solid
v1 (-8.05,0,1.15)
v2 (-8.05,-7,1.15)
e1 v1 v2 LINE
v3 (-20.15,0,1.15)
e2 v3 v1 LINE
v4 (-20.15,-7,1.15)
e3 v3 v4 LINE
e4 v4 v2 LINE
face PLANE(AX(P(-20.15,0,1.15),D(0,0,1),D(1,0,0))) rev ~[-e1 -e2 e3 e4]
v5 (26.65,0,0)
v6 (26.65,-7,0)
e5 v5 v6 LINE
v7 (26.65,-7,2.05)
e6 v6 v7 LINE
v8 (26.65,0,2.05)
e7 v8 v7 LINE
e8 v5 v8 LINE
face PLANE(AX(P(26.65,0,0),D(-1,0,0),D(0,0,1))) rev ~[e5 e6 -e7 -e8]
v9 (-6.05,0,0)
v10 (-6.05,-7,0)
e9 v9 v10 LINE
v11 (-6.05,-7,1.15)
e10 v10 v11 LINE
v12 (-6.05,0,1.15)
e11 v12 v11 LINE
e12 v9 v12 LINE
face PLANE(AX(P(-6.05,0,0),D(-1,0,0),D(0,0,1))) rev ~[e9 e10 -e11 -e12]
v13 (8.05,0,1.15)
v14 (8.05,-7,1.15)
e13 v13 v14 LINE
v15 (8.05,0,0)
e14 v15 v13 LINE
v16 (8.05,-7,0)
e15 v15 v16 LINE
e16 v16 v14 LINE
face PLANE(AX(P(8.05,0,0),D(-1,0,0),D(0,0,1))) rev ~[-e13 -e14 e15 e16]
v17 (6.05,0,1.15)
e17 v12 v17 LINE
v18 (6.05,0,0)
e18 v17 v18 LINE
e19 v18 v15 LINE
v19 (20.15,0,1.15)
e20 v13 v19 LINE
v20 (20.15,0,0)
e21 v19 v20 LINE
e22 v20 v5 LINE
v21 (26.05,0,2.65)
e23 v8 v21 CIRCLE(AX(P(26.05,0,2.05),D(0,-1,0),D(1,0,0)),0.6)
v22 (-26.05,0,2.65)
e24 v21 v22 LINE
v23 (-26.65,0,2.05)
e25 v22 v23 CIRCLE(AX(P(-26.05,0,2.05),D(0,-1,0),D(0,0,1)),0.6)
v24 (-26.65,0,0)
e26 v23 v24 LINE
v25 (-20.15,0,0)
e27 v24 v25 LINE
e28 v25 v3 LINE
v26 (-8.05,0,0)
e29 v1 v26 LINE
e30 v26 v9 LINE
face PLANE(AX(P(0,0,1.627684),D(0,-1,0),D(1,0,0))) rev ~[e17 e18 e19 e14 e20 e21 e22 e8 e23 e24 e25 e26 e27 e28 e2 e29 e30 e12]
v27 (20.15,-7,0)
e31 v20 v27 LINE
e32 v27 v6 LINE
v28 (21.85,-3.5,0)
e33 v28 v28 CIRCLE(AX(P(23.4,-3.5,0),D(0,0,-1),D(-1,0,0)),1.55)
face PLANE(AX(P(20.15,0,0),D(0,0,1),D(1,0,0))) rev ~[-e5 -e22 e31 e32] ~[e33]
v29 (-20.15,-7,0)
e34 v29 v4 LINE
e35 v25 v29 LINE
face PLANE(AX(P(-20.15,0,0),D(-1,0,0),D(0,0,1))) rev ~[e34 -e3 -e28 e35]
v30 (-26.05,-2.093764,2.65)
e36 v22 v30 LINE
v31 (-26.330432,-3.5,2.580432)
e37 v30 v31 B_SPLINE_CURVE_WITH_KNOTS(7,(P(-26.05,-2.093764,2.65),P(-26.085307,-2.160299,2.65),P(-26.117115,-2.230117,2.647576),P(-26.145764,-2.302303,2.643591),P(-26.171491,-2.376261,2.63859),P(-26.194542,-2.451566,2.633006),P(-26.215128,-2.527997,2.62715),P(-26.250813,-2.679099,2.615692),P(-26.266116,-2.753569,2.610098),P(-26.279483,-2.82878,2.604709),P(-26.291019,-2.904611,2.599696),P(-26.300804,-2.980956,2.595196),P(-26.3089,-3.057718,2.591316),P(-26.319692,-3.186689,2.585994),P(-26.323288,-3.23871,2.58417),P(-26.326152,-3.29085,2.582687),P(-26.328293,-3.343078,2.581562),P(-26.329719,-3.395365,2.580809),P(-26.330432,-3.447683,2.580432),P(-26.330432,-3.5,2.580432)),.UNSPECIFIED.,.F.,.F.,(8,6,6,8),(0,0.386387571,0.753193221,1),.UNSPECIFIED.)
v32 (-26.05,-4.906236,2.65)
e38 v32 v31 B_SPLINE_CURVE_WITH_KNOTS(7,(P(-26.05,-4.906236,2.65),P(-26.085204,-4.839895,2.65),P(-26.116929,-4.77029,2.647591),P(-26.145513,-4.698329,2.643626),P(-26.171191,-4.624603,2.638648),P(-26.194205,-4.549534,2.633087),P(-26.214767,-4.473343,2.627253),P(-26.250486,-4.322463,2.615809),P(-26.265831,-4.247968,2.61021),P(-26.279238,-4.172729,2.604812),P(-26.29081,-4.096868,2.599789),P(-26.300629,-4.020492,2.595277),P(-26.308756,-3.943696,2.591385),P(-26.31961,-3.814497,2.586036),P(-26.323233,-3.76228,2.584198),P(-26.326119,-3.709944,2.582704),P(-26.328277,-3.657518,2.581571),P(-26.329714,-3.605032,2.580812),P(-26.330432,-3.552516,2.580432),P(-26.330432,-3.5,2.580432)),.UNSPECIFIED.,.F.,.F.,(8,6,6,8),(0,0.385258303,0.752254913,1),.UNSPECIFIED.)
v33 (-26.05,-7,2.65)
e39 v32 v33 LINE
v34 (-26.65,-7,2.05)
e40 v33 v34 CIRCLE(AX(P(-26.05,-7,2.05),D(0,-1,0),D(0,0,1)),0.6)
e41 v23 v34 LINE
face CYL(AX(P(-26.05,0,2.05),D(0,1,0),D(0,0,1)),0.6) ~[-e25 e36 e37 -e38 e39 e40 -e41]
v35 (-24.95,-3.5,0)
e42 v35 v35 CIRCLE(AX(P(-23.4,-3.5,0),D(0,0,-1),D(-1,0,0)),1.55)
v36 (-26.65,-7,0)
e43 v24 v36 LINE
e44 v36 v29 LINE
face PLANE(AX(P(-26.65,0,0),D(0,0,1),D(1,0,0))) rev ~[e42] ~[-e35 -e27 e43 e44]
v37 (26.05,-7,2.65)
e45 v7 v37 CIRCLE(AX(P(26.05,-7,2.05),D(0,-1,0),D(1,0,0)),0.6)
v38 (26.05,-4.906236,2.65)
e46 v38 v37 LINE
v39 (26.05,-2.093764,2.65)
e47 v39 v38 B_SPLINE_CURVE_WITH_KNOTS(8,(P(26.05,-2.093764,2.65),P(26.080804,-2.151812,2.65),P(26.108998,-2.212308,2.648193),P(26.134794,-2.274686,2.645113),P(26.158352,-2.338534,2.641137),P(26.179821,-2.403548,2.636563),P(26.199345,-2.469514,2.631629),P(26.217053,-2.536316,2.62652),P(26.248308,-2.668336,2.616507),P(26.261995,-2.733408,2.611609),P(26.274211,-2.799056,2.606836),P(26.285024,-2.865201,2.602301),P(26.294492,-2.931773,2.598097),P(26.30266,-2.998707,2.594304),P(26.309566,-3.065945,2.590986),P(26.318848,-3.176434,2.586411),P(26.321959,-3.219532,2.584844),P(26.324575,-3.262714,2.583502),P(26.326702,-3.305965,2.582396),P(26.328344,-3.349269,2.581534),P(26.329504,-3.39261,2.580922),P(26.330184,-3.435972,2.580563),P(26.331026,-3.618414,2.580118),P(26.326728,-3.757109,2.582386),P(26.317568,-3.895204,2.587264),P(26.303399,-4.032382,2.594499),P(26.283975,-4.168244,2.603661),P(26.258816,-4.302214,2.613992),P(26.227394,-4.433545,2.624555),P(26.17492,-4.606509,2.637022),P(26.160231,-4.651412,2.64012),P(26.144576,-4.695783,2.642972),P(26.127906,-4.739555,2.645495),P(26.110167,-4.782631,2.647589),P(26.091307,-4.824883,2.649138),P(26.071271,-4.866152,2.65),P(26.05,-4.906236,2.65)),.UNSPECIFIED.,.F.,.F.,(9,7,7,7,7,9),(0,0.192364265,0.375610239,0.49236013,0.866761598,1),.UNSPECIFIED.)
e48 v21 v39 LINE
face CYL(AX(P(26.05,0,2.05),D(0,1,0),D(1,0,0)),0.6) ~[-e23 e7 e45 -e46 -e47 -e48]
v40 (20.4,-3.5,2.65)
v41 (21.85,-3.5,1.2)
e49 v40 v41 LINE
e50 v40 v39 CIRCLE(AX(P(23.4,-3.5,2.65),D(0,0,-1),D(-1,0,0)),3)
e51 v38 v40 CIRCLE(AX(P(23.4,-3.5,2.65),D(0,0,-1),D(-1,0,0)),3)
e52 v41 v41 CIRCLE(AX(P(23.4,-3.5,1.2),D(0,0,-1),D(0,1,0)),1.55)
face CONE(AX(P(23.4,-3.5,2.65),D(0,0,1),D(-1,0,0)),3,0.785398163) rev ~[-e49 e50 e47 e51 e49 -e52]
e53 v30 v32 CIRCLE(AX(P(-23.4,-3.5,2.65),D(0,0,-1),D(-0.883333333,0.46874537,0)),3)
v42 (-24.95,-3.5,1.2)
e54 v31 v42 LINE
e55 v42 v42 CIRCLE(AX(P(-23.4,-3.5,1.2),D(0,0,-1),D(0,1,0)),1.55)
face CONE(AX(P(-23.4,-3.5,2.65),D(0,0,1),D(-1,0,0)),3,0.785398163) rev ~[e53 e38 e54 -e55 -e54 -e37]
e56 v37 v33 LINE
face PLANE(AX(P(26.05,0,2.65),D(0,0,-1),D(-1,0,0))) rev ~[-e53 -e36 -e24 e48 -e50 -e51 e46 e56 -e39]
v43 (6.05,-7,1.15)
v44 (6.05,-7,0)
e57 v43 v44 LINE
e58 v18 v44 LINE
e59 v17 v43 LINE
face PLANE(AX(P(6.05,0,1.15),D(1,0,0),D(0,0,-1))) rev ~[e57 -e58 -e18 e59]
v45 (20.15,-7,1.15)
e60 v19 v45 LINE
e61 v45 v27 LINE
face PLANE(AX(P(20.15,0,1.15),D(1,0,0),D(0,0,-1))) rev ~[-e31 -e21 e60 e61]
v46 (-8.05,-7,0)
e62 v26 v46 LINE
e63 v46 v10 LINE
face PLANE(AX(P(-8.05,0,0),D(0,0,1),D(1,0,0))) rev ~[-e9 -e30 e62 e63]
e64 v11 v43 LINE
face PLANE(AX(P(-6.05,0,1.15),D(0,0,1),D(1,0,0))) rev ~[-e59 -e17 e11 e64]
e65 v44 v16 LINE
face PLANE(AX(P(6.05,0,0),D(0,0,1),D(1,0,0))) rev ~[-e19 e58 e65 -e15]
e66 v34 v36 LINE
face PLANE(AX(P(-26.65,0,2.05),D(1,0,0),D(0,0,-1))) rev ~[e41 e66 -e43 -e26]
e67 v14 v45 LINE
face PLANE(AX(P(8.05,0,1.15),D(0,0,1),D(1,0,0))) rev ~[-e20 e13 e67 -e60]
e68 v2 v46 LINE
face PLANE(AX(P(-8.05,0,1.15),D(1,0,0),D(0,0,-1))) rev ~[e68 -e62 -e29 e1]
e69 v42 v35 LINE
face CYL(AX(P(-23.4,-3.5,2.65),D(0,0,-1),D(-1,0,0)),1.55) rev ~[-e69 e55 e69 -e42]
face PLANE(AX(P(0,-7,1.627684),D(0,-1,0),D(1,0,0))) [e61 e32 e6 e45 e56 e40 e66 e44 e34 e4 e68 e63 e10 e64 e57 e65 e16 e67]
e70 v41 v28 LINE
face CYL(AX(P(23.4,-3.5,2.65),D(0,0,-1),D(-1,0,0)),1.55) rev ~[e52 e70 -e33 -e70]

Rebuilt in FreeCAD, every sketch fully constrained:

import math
import FreeCAD as App
import Part
import Sketcher

V = App.Vector
Q = App.Units.Quantity

doc = App.newDocument("Part")
body = doc.addObject("PartDesign::Body", "Body")

sketch1 = doc.addObject("Sketcher::SketchObject", "Sketch")
body.addObject(sketch1)
sketch1.AttachmentSupport = (doc.XZ_Plane, [""])
sketch1.MapMode = "FlatFace"
sketch1.addGeometry(Part.LineSegment(V(-6.05, 1.15, 0), V(6.05, 1.15, 0)), False)
sketch1.addGeometry(Part.LineSegment(V(6.05, 1.15, 0), V(6.05, 0, 0)), False)
sketch1.addGeometry(Part.LineSegment(V(6.05, 0, 0), V(8.05, 0, 0)), False)
sketch1.addGeometry(Part.LineSegment(V(8.05, 0, 0), V(8.05, 1.15, 0)), False)
sketch1.addGeometry(Part.LineSegment(V(8.05, 1.15, 0), V(20.15, 1.15, 0)), False)
sketch1.addGeometry(Part.LineSegment(V(20.15, 1.15, 0), V(20.15, 0, 0)), False)
sketch1.addGeometry(Part.LineSegment(V(20.15, 0, 0), V(26.65, 0, 0)), False)
sketch1.addGeometry(Part.LineSegment(V(26.65, 0, 0), V(26.65, 2.05, 0)), False)
sketch1.addGeometry(Part.ArcOfCircle(Part.Circle(V(26.05, 2.05, 0), V(0, 0, 1), 0.6), math.radians(0), math.radians(90)), False)
sketch1.addGeometry(Part.LineSegment(V(26.05, 2.65, 0), V(-26.05, 2.65, 0)), False)
sketch1.addGeometry(Part.ArcOfCircle(Part.Circle(V(-26.05, 2.05, 0), V(0, 0, 1), 0.6), math.radians(90), math.radians(180)), False)
sketch1.addGeometry(Part.LineSegment(V(-26.65, 2.05, 0), V(-26.65, 0, 0)), False)
sketch1.addGeometry(Part.LineSegment(V(-26.65, 0, 0), V(-20.15, 0, 0)), False)
sketch1.addGeometry(Part.LineSegment(V(-20.15, 0, 0), V(-20.15, 1.15, 0)), False)
sketch1.addGeometry(Part.LineSegment(V(-20.15, 1.15, 0), V(-8.05, 1.15, 0)), False)
sketch1.addGeometry(Part.LineSegment(V(-8.05, 1.15, 0), V(-8.05, 0, 0)), False)
sketch1.addGeometry(Part.LineSegment(V(-8.05, 0, 0), V(-6.05, 0, 0)), False)
sketch1.addGeometry(Part.LineSegment(V(-6.05, 0, 0), V(-6.05, 1.15, 0)), False)
sketch1.addConstraint(Sketcher.Constraint("Coincident", 0, 2, 1, 1))
sketch1.addConstraint(Sketcher.Constraint("Coincident", 1, 2, 2, 1))
sketch1.addConstraint(Sketcher.Constraint("Coincident", 2, 2, 3, 1))
sketch1.addConstraint(Sketcher.Constraint("Coincident", 3, 2, 4, 1))
sketch1.addConstraint(Sketcher.Constraint("Coincident", 4, 2, 5, 1))
sketch1.addConstraint(Sketcher.Constraint("Coincident", 5, 2, 6, 1))
sketch1.addConstraint(Sketcher.Constraint("Coincident", 6, 2, 7, 1))
sketch1.addConstraint(Sketcher.Constraint("Tangent", 7, 2, 8, 1))
sketch1.addConstraint(Sketcher.Constraint("Tangent", 8, 2, 9, 1))
sketch1.addConstraint(Sketcher.Constraint("Tangent", 9, 2, 10, 1))
sketch1.addConstraint(Sketcher.Constraint("Tangent", 10, 2, 11, 1))
sketch1.addConstraint(Sketcher.Constraint("Coincident", 11, 2, 12, 1))
sketch1.addConstraint(Sketcher.Constraint("Coincident", 12, 2, 13, 1))
sketch1.addConstraint(Sketcher.Constraint("Coincident", 13, 2, 14, 1))
sketch1.addConstraint(Sketcher.Constraint("Coincident", 14, 2, 15, 1))
sketch1.addConstraint(Sketcher.Constraint("Coincident", 15, 2, 16, 1))
sketch1.addConstraint(Sketcher.Constraint("Coincident", 16, 2, 17, 1))
sketch1.addConstraint(Sketcher.Constraint("Coincident", 17, 2, 0, 1))
sketch1.addConstraint(Sketcher.Constraint("Horizontal", 0))
sketch1.addConstraint(Sketcher.Constraint("Vertical", 1))
sketch1.addConstraint(Sketcher.Constraint("Horizontal", 2))
sketch1.addConstraint(Sketcher.Constraint("Vertical", 3))
sketch1.addConstraint(Sketcher.Constraint("Horizontal", 4))
sketch1.addConstraint(Sketcher.Constraint("Vertical", 5))
sketch1.addConstraint(Sketcher.Constraint("Horizontal", 6))
sketch1.addConstraint(Sketcher.Constraint("Vertical", 7))
sketch1.addConstraint(Sketcher.Constraint("Horizontal", 9))
sketch1.addConstraint(Sketcher.Constraint("Vertical", 11))
sketch1.addConstraint(Sketcher.Constraint("Horizontal", 12))
sketch1.addConstraint(Sketcher.Constraint("Vertical", 13))
sketch1.addConstraint(Sketcher.Constraint("Horizontal", 14))
sketch1.addConstraint(Sketcher.Constraint("Vertical", 15))
sketch1.addConstraint(Sketcher.Constraint("Horizontal", 16))
sketch1.addConstraint(Sketcher.Constraint("Vertical", 17))
sketch1.addConstraint(Sketcher.Constraint("Equal", 8, 10))
sketch1.addConstraint(Sketcher.Constraint("Symmetric", 6, 2, 11, 2, -1, 1))
sketch1.addConstraint(Sketcher.Constraint("Symmetric", 2, 2, 15, 2, -1, 1))
sketch1.addConstraint(Sketcher.Constraint("Symmetric", 5, 2, 12, 2, -2))
sketch1.addConstraint(Sketcher.Constraint("Symmetric", 1, 2, 16, 2, -2))
sketch1.addConstraint(Sketcher.Constraint("Horizontal", 0, 2, 3, 2))
sketch1.addConstraint(Sketcher.Constraint("Horizontal", 4, 2, 13, 2))
sketch1.addConstraint(Sketcher.Constraint("Equal", 0, 4))
sketch1.addConstraint(Sketcher.Constraint("Radius", 8, Q("0.6 mm")))
sketch1.addConstraint(Sketcher.Constraint("DistanceX", 2, 1, 2, 2, Q("2 mm")))
sketch1.addConstraint(Sketcher.Constraint("DistanceX", 0, 1, 0, 2, Q("12.1 mm")))
sketch1.addConstraint(Sketcher.Constraint("DistanceX", 6, 1, 6, 2, Q("6.5 mm")))
sketch1.addConstraint(Sketcher.Constraint("DistanceY", 1, 2, 1, 1, Q("1.15 mm")))
sketch1.addConstraint(Sketcher.Constraint("DistanceY", 7, 1, 7, 2, Q("2.05 mm")))
pad1 = doc.addObject("PartDesign::Pad", "Pad")
body.addObject(pad1)
pad1.Profile = sketch1
pad1.Length = 7

sketch2 = doc.addObject("Sketcher::SketchObject", "Sketch001")
body.addObject(sketch2)
sketch2.AttachmentSupport = (doc.XY_Plane, [""])
sketch2.MapMode = "FlatFace"
sketch2.AttachmentOffset = App.Placement(V(0, 0, 2.65), App.Rotation())
sketch2.addGeometry(Part.Circle(V(-23.4, -3.5, 0), V(0, 0, 1), 1.55), False)
sketch2.addConstraint(Sketcher.Constraint("Diameter", 0, Q("3.1 mm")))
sketch2.addConstraint(Sketcher.Constraint("DistanceX", 0, 3, -1, 1, Q("23.4 mm")))
sketch2.addConstraint(Sketcher.Constraint("DistanceY", 0, 3, -1, 1, Q("3.5 mm")))
doc.recompute()
hole = doc.addObject("PartDesign::Hole", "Hole")
body.addObject(hole)
hole.Profile = sketch2
hole.ThreadType = "None"
hole.Diameter = 3.1
hole.DepthType = "ThroughAll"
hole.HoleCutType = "Countersink"
hole.HoleCutDiameter = 6
hole.HoleCutCountersinkAngle = 90

sketch3 = doc.addObject("Sketcher::SketchObject", "Sketch002")
body.addObject(sketch3)
sketch3.AttachmentSupport = (doc.XY_Plane, [""])
sketch3.MapMode = "FlatFace"
sketch3.AttachmentOffset = App.Placement(V(0, 0, 2.65), App.Rotation())
sketch3.addGeometry(Part.Circle(V(23.4, -3.5, 0), V(0, 0, 1), 1.55), False)
sketch3.addConstraint(Sketcher.Constraint("Diameter", 0, Q("3.1 mm")))
sketch3.addConstraint(Sketcher.Constraint("DistanceX", -1, 1, 0, 3, Q("23.4 mm")))
sketch3.addConstraint(Sketcher.Constraint("DistanceY", 0, 3, -1, 1, Q("3.5 mm")))
doc.recompute()
hole2 = doc.addObject("PartDesign::Hole", "Hole001")
body.addObject(hole2)
hole2.Profile = sketch3
hole2.ThreadType = "None"
hole2.Diameter = 3.1
hole2.DepthType = "ThroughAll"
hole2.HoleCutType = "Countersink"
hole2.HoleCutDiameter = 6
hole2.HoleCutCountersinkAngle = 90

doc.recompute()
